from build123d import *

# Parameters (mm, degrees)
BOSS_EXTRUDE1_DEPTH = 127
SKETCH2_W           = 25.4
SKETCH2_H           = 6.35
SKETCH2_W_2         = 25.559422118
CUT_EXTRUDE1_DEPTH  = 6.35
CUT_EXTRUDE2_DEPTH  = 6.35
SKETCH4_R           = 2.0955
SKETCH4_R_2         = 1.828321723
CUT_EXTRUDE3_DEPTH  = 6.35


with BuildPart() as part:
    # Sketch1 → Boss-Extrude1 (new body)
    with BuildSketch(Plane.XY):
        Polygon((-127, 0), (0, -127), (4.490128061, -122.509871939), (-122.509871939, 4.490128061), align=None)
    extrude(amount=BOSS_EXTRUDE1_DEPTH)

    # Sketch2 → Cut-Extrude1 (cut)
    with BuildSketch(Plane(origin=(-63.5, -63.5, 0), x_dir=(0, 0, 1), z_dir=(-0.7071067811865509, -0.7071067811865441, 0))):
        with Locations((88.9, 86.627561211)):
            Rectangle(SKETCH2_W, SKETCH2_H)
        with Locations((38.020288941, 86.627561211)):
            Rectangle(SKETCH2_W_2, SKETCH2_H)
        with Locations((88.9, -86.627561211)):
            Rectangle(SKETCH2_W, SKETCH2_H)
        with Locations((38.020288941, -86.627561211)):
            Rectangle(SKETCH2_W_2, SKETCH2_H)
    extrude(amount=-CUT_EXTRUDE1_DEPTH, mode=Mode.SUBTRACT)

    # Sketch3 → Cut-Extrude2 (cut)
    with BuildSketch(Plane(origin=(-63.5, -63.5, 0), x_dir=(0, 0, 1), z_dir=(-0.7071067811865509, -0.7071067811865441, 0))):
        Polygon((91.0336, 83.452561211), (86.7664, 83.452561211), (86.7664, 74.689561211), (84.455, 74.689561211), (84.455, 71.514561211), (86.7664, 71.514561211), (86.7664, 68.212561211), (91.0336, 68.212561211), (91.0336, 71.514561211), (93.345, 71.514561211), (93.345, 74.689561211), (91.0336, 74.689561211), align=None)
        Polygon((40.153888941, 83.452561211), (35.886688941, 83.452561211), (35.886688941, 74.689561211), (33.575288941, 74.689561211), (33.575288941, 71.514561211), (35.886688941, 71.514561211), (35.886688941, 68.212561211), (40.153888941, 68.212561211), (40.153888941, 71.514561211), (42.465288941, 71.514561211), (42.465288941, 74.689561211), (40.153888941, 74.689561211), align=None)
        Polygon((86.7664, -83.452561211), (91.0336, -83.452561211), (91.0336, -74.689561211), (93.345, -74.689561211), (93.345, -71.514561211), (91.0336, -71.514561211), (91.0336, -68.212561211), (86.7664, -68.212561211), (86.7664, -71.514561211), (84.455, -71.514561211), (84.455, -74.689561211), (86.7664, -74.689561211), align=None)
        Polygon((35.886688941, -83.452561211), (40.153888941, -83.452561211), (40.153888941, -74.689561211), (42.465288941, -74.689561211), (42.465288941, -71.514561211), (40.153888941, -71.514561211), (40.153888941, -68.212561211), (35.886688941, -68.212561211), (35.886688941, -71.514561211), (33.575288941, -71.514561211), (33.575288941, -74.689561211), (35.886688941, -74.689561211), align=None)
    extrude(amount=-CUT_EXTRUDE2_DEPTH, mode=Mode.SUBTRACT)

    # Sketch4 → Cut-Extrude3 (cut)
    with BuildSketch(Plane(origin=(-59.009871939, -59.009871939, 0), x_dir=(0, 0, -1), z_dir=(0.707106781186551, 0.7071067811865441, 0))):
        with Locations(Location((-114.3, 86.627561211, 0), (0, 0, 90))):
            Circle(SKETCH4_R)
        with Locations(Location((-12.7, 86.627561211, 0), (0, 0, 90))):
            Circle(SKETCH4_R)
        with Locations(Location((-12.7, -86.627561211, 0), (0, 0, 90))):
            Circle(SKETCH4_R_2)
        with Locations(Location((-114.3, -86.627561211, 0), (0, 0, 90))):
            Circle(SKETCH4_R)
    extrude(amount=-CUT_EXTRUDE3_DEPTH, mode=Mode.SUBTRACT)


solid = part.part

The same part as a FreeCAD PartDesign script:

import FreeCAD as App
import Part
import Sketcher
Q = App.Units.Quantity

doc = App.newDocument("Part")
body = doc.addObject("PartDesign::Body", "Body")

sketch1 = doc.addObject("Sketcher::SketchObject", "Sketch")
body.addObject(sketch1)
sketch1.AttachmentSupport = (doc.XY_Plane, [""])
sketch1.MapMode = "FlatFace"
sketch1.addGeometry(Part.LineSegment(App.Vector(-127, 0, 0), App.Vector(0, -127, 0)), False)
sketch1.addGeometry(Part.LineSegment(App.Vector(0, -127, 0), App.Vector(4, -123, 0)), False)
sketch1.addGeometry(Part.LineSegment(App.Vector(4, -123, 0), App.Vector(-123, 4, 0)), False)
sketch1.addGeometry(Part.LineSegment(App.Vector(-123, 4, 0), App.Vector(-127, 0, 0)), False)
sketch1.addConstraint(Sketcher.Constraint("Coincident", 0, 2, 1, 1))
sketch1.addConstraint(Sketcher.Constraint("Coincident", 1, 2, 2, 1))
sketch1.addConstraint(Sketcher.Constraint("Coincident", 2, 2, 3, 1))
sketch1.addConstraint(Sketcher.Constraint("Coincident", 3, 2, 0, 1))
sketch1.addConstraint(Sketcher.Constraint("PointOnObject", 0, 2, -2))
sketch1.addConstraint(Sketcher.Constraint("PointOnObject", 3, 2, -1))
sketch1.addConstraint(Sketcher.Constraint("Perpendicular", 0, 1))
sketch1.addConstraint(Sketcher.Constraint("Perpendicular", 1, 2))
sketch1.addConstraint(Sketcher.Constraint("Perpendicular", 2, 3))
sketch1.addConstraint(Sketcher.Constraint("DistanceY", 0, 2, -1, 1, Q("5 in")))
sketch1.addConstraint(Sketcher.Constraint("DistanceX", 3, 2, -1, 1, Q("5 in")))
sketch1.addConstraint(Sketcher.Constraint("Distance", 1, Q("0.25 in")))
pad1 = doc.addObject("PartDesign::Pad", "Pad")
body.addObject(pad1)
pad1.Profile = sketch1
pad1.Length = Q("5 in")

sketch2 = doc.addObject("Sketcher::SketchObject", "Sketch001")
body.addObject(sketch2)
sketch2.Placement = App.Placement(App.Vector(-63.5, -63.5, 0), App.Rotation(App.Vector(0, 0, 1), App.Vector(-0.707106781, 0.707106781, 0), App.Vector(-0.707106781, -0.707106781, 0), "ZXY"))
sketch2.addGeometry(Part.LineSegment(App.Vector(76, 90, 0), App.Vector(76, 83, 0)), False)
sketch2.addGeometry(Part.LineSegment(App.Vector(76, 83, 0), App.Vector(102, 83, 0)), False)
sketch2.addGeometry(Part.LineSegment(App.Vector(102, 83, 0), App.Vector(102, 90, 0)), False)
sketch2.addGeometry(Part.LineSegment(App.Vector(102, 90, 0), App.Vector(76, 90, 0)), False)
sketch2.addGeometry(Part.LineSegment(App.Vector(25, 90, 0), App.Vector(25, 83, 0)), False)
sketch2.addGeometry(Part.LineSegment(App.Vector(25, 83, 0), App.Vector(51, 83, 0)), False)
sketch2.addGeometry(Part.LineSegment(App.Vector(51, 83, 0), App.Vector(51, 90, 0)), False)
sketch2.addGeometry(Part.LineSegment(App.Vector(51, 90, 0), App.Vector(25, 90, 0)), False)
sketch2.addGeometry(Part.LineSegment(App.Vector(76, -83, 0), App.Vector(76, -90, 0)), False)
sketch2.addGeometry(Part.LineSegment(App.Vector(76, -90, 0), App.Vector(102, -90, 0)), False)
sketch2.addGeometry(Part.LineSegment(App.Vector(102, -90, 0), App.Vector(102, -83, 0)), False)
sketch2.addGeometry(Part.LineSegment(App.Vector(102, -83, 0), App.Vector(76, -83, 0)), False)
sketch2.addGeometry(Part.LineSegment(App.Vector(25, -83, 0), App.Vector(25, -90, 0)), False)
sketch2.addGeometry(Part.LineSegment(App.Vector(25, -90, 0), App.Vector(51, -90, 0)), False)
sketch2.addGeometry(Part.LineSegment(App.Vector(51, -90, 0), App.Vector(51, -83, 0)), False)
sketch2.addGeometry(Part.LineSegment(App.Vector(51, -83, 0), App.Vector(25, -83, 0)), False)
sketch2.addConstraint(Sketcher.Constraint("Coincident", 0, 2, 1, 1))
sketch2.addConstraint(Sketcher.Constraint("Coincident", 1, 2, 2, 1))
sketch2.addConstraint(Sketcher.Constraint("Coincident", 2, 2, 3, 1))
sketch2.addConstraint(Sketcher.Constraint("Coincident", 3, 2, 0, 1))
sketch2.addConstraint(Sketcher.Constraint("Coincident", 4, 2, 5, 1))
sketch2.addConstraint(Sketcher.Constraint("Coincident", 5, 2, 6, 1))
sketch2.addConstraint(Sketcher.Constraint("Coincident", 6, 2, 7, 1))
sketch2.addConstraint(Sketcher.Constraint("Coincident", 7, 2, 4, 1))
sketch2.addConstraint(Sketcher.Constraint("Coincident", 8, 2, 9, 1))
sketch2.addConstraint(Sketcher.Constraint("Coincident", 9, 2, 10, 1))
sketch2.addConstraint(Sketcher.Constraint("Coincident", 10, 2, 11, 1))
sketch2.addConstraint(Sketcher.Constraint("Coincident", 11, 2, 8, 1))
sketch2.addConstraint(Sketcher.Constraint("Coincident", 12, 2, 13, 1))
sketch2.addConstraint(Sketcher.Constraint("Coincident", 13, 2, 14, 1))
sketch2.addConstraint(Sketcher.Constraint("Coincident", 14, 2, 15, 1))
sketch2.addConstraint(Sketcher.Constraint("Coincident", 15, 2, 12, 1))
sketch2.addConstraint(Sketcher.Constraint("Vertical", 0))
sketch2.addConstraint(Sketcher.Constraint("Horizontal", 1))
sketch2.addConstraint(Sketcher.Constraint("Vertical", 2))
sketch2.addConstraint(Sketcher.Constraint("Horizontal", 3))
sketch2.addConstraint(Sketcher.Constraint("Vertical", 4))
sketch2.addConstraint(Sketcher.Constraint("Horizontal", 5))
sketch2.addConstraint(Sketcher.Constraint("Vertical", 6))
sketch2.addConstraint(Sketcher.Constraint("Horizontal", 7))
sketch2.addConstraint(Sketcher.Constraint("Vertical", 8))
sketch2.addConstraint(Sketcher.Constraint("Horizontal", 9))
sketch2.addConstraint(Sketcher.Constraint("Vertical", 10))
sketch2.addConstraint(Sketcher.Constraint("Horizontal", 11))
sketch2.addConstraint(Sketcher.Constraint("Vertical", 12))
sketch2.addConstraint(Sketcher.Constraint("Horizontal", 13))
sketch2.addConstraint(Sketcher.Constraint("Vertical", 14))
sketch2.addConstraint(Sketcher.Constraint("Horizontal", 15))
sketch2.addConstraint(Sketcher.Constraint("Symmetric", 3, 2, 8, 2, -1))
sketch2.addConstraint(Sketcher.Constraint("Symmetric", 1, 2, 10, 2, -1))
sketch2.addConstraint(Sketcher.Constraint("Symmetric", 7, 2, 12, 2, -1))
sketch2.addConstraint(Sketcher.Constraint("Symmetric", 5, 2, 14, 2, -1))
sketch2.addConstraint(Sketcher.Constraint("Horizontal", 1, 2, 4, 2))
sketch2.addConstraint(Sketcher.Constraint("Horizontal", 3, 2, 6, 2))
sketch2.addConstraint(Sketcher.Constraint("DistanceX", 1, 1, 1, 2, Q("1 in")))
sketch2.addConstraint(Sketcher.Constraint("DistanceX", -1, 1, 0, 2, Q("3 in")))
sketch2.addConstraint(Sketcher.Constraint("DistanceX", -1, 1, 5, 2, Q("2 in")))
sketch2.addConstraint(Sketcher.Constraint("DistanceY", 0, 2, 0, 1, Q("0.25 in")))
sketch2.addConstraint(Sketcher.Constraint("DistanceX", 5, 1, 5, 2, Q("25.559422 mm")))
sketch2.addConstraint(Sketcher.Constraint("DistanceY", -1, 1, 0, 2, Q("83.452561 mm")))
pocket1 = doc.addObject("PartDesign::Pocket", "Pocket")
body.addObject(pocket1)
pocket1.Profile = sketch2
pocket1.Length = Q("0.25 in")

sketch3 = doc.addObject("Sketcher::SketchObject", "Sketch002")
body.addObject(sketch3)
sketch3.Placement = App.Placement(App.Vector(-63.5, -63.5, 0), App.Rotation(App.Vector(0, 0, 1), App.Vector(-0.707106781, 0.707106781, 0), App.Vector(-0.707106781, -0.707106781, 0), "ZXY"))
sketch3.addGeometry(Part.LineSegment(App.Vector(91, 83.5, 0), App.Vector(86.8, 83.5, 0)), False)
sketch3.addGeometry(Part.LineSegment(App.Vector(86.8, 83.5, 0), App.Vector(86.8, 74.7, 0)), False)
sketch3.addGeometry(Part.LineSegment(App.Vector(86.8, 74.7, 0), App.Vector(84.5, 74.7, 0)), False)
sketch3.addGeometry(Part.LineSegment(App.Vector(84.5, 74.7, 0), App.Vector(84.5, 71.5, 0)), False)
sketch3.addGeometry(Part.LineSegment(App.Vector(84.5, 71.5, 0), App.Vector(86.8, 71.5, 0)), False)
sketch3.addGeometry(Part.LineSegment(App.Vector(86.8, 71.5, 0), App.Vector(86.8, 68.2, 0)), False)
sketch3.addGeometry(Part.LineSegment(App.Vector(86.8, 68.2, 0), App.Vector(91, 68.2, 0)), False)
sketch3.addGeometry(Part.LineSegment(App.Vector(91, 68.2, 0), App.Vector(91, 71.5, 0)), False)
sketch3.addGeometry(Part.LineSegment(App.Vector(91, 71.5, 0), App.Vector(93.3, 71.5, 0)), False)
sketch3.addGeometry(Part.LineSegment(App.Vector(93.3, 71.5, 0), App.Vector(93.3, 74.7, 0)), False)
sketch3.addGeometry(Part.LineSegment(App.Vector(93.3, 74.7, 0), App.Vector(91, 74.7, 0)), False)
sketch3.addGeometry(Part.LineSegment(App.Vector(91, 74.7, 0), App.Vector(91, 83.5, 0)), False)
sketch3.addGeometry(Part.LineSegment(App.Vector(40.2, 83.5, 0), App.Vector(35.9, 83.5, 0)), False)
sketch3.addGeometry(Part.LineSegment(App.Vector(35.9, 83.5, 0), App.Vector(35.9, 74.7, 0)), False)
sketch3.addGeometry(Part.LineSegment(App.Vector(35.9, 74.7, 0), App.Vector(33.6, 74.7, 0)), False)
sketch3.addGeometry(Part.LineSegment(App.Vector(33.6, 74.7, 0), App.Vector(33.6, 71.5, 0)), False)
sketch3.addGeometry(Part.LineSegment(App.Vector(33.6, 71.5, 0), App.Vector(35.9, 71.5, 0)), False)
sketch3.addGeometry(Part.LineSegment(App.Vector(35.9, 71.5, 0), App.Vector(35.9, 68.2, 0)), False)
sketch3.addGeometry(Part.LineSegment(App.Vector(35.9, 68.2, 0), App.Vector(40.2, 68.2, 0)), False)
sketch3.addGeometry(Part.LineSegment(App.Vector(40.2, 68.2, 0), App.Vector(40.2, 71.5, 0)), False)
sketch3.addGeometry(Part.LineSegment(App.Vector(40.2, 71.5, 0), App.Vector(42.5, 71.5, 0)), False)
sketch3.addGeometry(Part.LineSegment(App.Vector(42.5, 71.5, 0), App.Vector(42.5, 74.7, 0)), False)
sketch3.addGeometry(Part.LineSegment(App.Vector(42.5, 74.7, 0), App.Vector(40.2, 74.7, 0)), False)
sketch3.addGeometry(Part.LineSegment(App.Vector(40.2, 74.7, 0), App.Vector(40.2, 83.5, 0)), False)
sketch3.addGeometry(Part.LineSegment(App.Vector(86.8, -83.5, 0), App.Vector(91, -83.5, 0)), False)
sketch3.addGeometry(Part.LineSegment(App.Vector(91, -83.5, 0), App.Vector(91, -74.7, 0)), False)
sketch3.addGeometry(Part.LineSegment(App.Vector(91, -74.7, 0), App.Vector(93.3, -74.7, 0)), False)
sketch3.addGeometry(Part.LineSegment(App.Vector(93.3, -74.7, 0), App.Vector(93.3, -71.5, 0)), False)
sketch3.addGeometry(Part.LineSegment(App.Vector(93.3, -71.5, 0), App.Vector(91, -71.5, 0)), False)
sketch3.addGeometry(Part.LineSegment(App.Vector(91, -71.5, 0), App.Vector(91, -68.2, 0)), False)
sketch3.addGeometry(Part.LineSegment(App.Vector(91, -68.2, 0), App.Vector(86.8, -68.2, 0)), False)
sketch3.addGeometry(Part.LineSegment(App.Vector(86.8, -68.2, 0), App.Vector(86.8, -71.5, 0)), False)
sketch3.addGeometry(Part.LineSegment(App.Vector(86.8, -71.5, 0), App.Vector(84.5, -71.5, 0)), False)
sketch3.addGeometry(Part.LineSegment(App.Vector(84.5, -71.5, 0), App.Vector(84.5, -74.7, 0)), False)
sketch3.addGeometry(Part.LineSegment(App.Vector(84.5, -74.7, 0), App.Vector(86.8, -74.7, 0)), False)
sketch3.addGeometry(Part.LineSegment(App.Vector(86.8, -74.7, 0), App.Vector(86.8, -83.5, 0)), False)
sketch3.addGeometry(Part.LineSegment(App.Vector(35.9, -83.5, 0), App.Vector(40.2, -83.5, 0)), False)
sketch3.addGeometry(Part.LineSegment(App.Vector(40.2, -83.5, 0), App.Vector(40.2, -74.7, 0)), False)
sketch3.addGeometry(Part.LineSegment(App.Vector(40.2, -74.7, 0), App.Vector(42.5, -74.7, 0)), False)
sketch3.addGeometry(Part.LineSegment(App.Vector(42.5, -74.7, 0), App.Vector(42.5, -71.5, 0)), False)
sketch3.addGeometry(Part.LineSegment(App.Vector(42.5, -71.5, 0), App.Vector(40.2, -71.5, 0)), False)
sketch3.addGeometry(Part.LineSegment(App.Vector(40.2, -71.5, 0), App.Vector(40.2, -68.2, 0)), False)
sketch3.addGeometry(Part.LineSegment(App.Vector(40.2, -68.2, 0), App.Vector(35.9, -68.2, 0)), False)
sketch3.addGeometry(Part.LineSegment(App.Vector(35.9, -68.2, 0), App.Vector(35.9, -71.5, 0)), False)
sketch3.addGeometry(Part.LineSegment(App.Vector(35.9, -71.5, 0), App.Vector(33.6, -71.5, 0)), False)
sketch3.addGeometry(Part.LineSegment(App.Vector(33.6, -71.5, 0), App.Vector(33.6, -74.7, 0)), False)
sketch3.addGeometry(Part.LineSegment(App.Vector(33.6, -74.7, 0), App.Vector(35.9, -74.7, 0)), False)
sketch3.addGeometry(Part.LineSegment(App.Vector(35.9, -74.7, 0), App.Vector(35.9, -83.5, 0)), False)
sketch3.addConstraint(Sketcher.Constraint("Coincident", 0, 2, 1, 1))
sketch3.addConstraint(Sketcher.Constraint("Coincident", 1, 2, 2, 1))
sketch3.addConstraint(Sketcher.Constraint("Coincident", 2, 2, 3, 1))
sketch3.addConstraint(Sketcher.Constraint("Coincident", 3, 2, 4, 1))
sketch3.addConstraint(Sketcher.Constraint("Coincident", 4, 2, 5, 1))
sketch3.addConstraint(Sketcher.Constraint("Coincident", 5, 2, 6, 1))
sketch3.addConstraint(Sketcher.Constraint("Coincident", 6, 2, 7, 1))
sketch3.addConstraint(Sketcher.Constraint("Coincident", 7, 2, 8, 1))
sketch3.addConstraint(Sketcher.Constraint("Coincident", 8, 2, 9, 1))
sketch3.addConstraint(Sketcher.Constraint("Coincident", 9, 2, 10, 1))
sketch3.addConstraint(Sketcher.Constraint("Coincident", 10, 2, 11, 1))
sketch3.addConstraint(Sketcher.Constraint("Coincident", 11, 2, 0, 1))
sketch3.addConstraint(Sketcher.Constraint("Coincident", 12, 2, 13, 1))
sketch3.addConstraint(Sketcher.Constraint("Coincident", 13, 2, 14, 1))
sketch3.addConstraint(Sketcher.Constraint("Coincident", 14, 2, 15, 1))
sketch3.addConstraint(Sketcher.Constraint("Coincident", 15, 2, 16, 1))
sketch3.addConstraint(Sketcher.Constraint("Coincident", 16, 2, 17, 1))
sketch3.addConstraint(Sketcher.Constraint("Coincident", 17, 2, 18, 1))
sketch3.addConstraint(Sketcher.Constraint("Coincident", 18, 2, 19, 1))
sketch3.addConstraint(Sketcher.Constraint("Coincident", 19, 2, 20, 1))
sketch3.addConstraint(Sketcher.Constraint("Coincident", 20, 2, 21, 1))
sketch3.addConstraint(Sketcher.Constraint("Coincident", 21, 2, 22, 1))
sketch3.addConstraint(Sketcher.Constraint("Coincident", 22, 2, 23, 1))
sketch3.addConstraint(Sketcher.Constraint("Coincident", 23, 2, 12, 1))
sketch3.addConstraint(Sketcher.Constraint("Coincident", 24, 2, 25, 1))
sketch3.addConstraint(Sketcher.Constraint("Coincident", 25, 2, 26, 1))
sketch3.addConstraint(Sketcher.Constraint("Coincident", 26, 2, 27, 1))
sketch3.addConstraint(Sketcher.Constraint("Coincident", 27, 2, 28, 1))
sketch3.addConstraint(Sketcher.Constraint("Coincident", 28, 2, 29, 1))
sketch3.addConstraint(Sketcher.Constraint("Coincident", 29, 2, 30, 1))
sketch3.addConstraint(Sketcher.Constraint("Coincident", 30, 2, 31, 1))
sketch3.addConstraint(Sketcher.Constraint("Coincident", 31, 2, 32, 1))
sketch3.addConstraint(Sketcher.Constraint("Coincident", 32, 2, 33, 1))
sketch3.addConstraint(Sketcher.Constraint("Coincident", 33, 2, 34, 1))
sketch3.addConstraint(Sketcher.Constraint("Coincident", 34, 2, 35, 1))
sketch3.addConstraint(Sketcher.Constraint("Coincident", 35, 2, 24, 1))
sketch3.addConstraint(Sketcher.Constraint("Coincident", 36, 2, 37, 1))
sketch3.addConstraint(Sketcher.Constraint("Coincident", 37, 2, 38, 1))
sketch3.addConstraint(Sketcher.Constraint("Coincident", 38, 2, 39, 1))
sketch3.addConstraint(Sketcher.Constraint("Coincident", 39, 2, 40, 1))
sketch3.addConstraint(Sketcher.Constraint("Coincident", 40, 2, 41, 1))
sketch3.addConstraint(Sketcher.Constraint("Coincident", 41, 2, 42, 1))
sketch3.addConstraint(Sketcher.Constraint("Coincident", 42, 2, 43, 1))
sketch3.addConstraint(Sketcher.Constraint("Coincident", 43, 2, 44, 1))
sketch3.addConstraint(Sketcher.Constraint("Coincident", 44, 2, 45, 1))
sketch3.addConstraint(Sketcher.Constraint("Coincident", 45, 2, 46, 1))
sketch3.addConstraint(Sketcher.Constraint("Coincident", 46, 2, 47, 1))
sketch3.addConstraint(Sketcher.Constraint("Coincident", 47, 2, 36, 1))
sketch3.addConstraint(Sketcher.Constraint("Horizontal", 0))
sketch3.addConstraint(Sketcher.Constraint("Vertical", 1))
sketch3.addConstraint(Sketcher.Constraint("Horizontal", 2))
sketch3.addConstraint(Sketcher.Constraint("Vertical", 3))
sketch3.addConstraint(Sketcher.Constraint("Horizontal", 4))
sketch3.addConstraint(Sketcher.Constraint("Vertical", 5))
sketch3.addConstraint(Sketcher.Constraint("Horizontal", 6))
sketch3.addConstraint(Sketcher.Constraint("Vertical", 7))
sketch3.addConstraint(Sketcher.Constraint("Horizontal", 8))
sketch3.addConstraint(Sketcher.Constraint("Vertical", 9))
sketch3.addConstraint(Sketcher.Constraint("Horizontal", 10))
sketch3.addConstraint(Sketcher.Constraint("Vertical", 11))
sketch3.addConstraint(Sketcher.Constraint("Horizontal", 12))
sketch3.addConstraint(Sketcher.Constraint("Vertical", 13))
sketch3.addConstraint(Sketcher.Constraint("Horizontal", 14))
sketch3.addConstraint(Sketcher.Constraint("Vertical", 15))
sketch3.addConstraint(Sketcher.Constraint("Horizontal", 16))
sketch3.addConstraint(Sketcher.Constraint("Vertical", 17))
sketch3.addConstraint(Sketcher.Constraint("Horizontal", 18))
sketch3.addConstraint(Sketcher.Constraint("Vertical", 19))
sketch3.addConstraint(Sketcher.Constraint("Horizontal", 20))
sketch3.addConstraint(Sketcher.Constraint("Vertical", 21))
sketch3.addConstraint(Sketcher.Constraint("Horizontal", 22))
sketch3.addConstraint(Sketcher.Constraint("Vertical", 23))
sketch3.addConstraint(Sketcher.Constraint("Horizontal", 24))
sketch3.addConstraint(Sketcher.Constraint("Vertical", 25))
sketch3.addConstraint(Sketcher.Constraint("Horizontal", 26))
sketch3.addConstraint(Sketcher.Constraint("Vertical", 27))
sketch3.addConstraint(Sketcher.Constraint("Horizontal", 28))
sketch3.addConstraint(Sketcher.Constraint("Vertical", 29))
sketch3.addConstraint(Sketcher.Constraint("Horizontal", 30))
sketch3.addConstraint(Sketcher.Constraint("Vertical", 31))
sketch3.addConstraint(Sketcher.Constraint("Horizontal", 32))
sketch3.addConstraint(Sketcher.Constraint("Vertical", 33))
sketch3.addConstraint(Sketcher.Constraint("Horizontal", 34))
sketch3.addConstraint(Sketcher.Constraint("Vertical", 35))
sketch3.addConstraint(Sketcher.Constraint("Horizontal", 36))
sketch3.addConstraint(Sketcher.Constraint("Vertical", 37))
sketch3.addConstraint(Sketcher.Constraint("Horizontal", 38))
sketch3.addConstraint(Sketcher.Constraint("Vertical", 39))
sketch3.addConstraint(Sketcher.Constraint("Horizontal", 40))
sketch3.addConstraint(Sketcher.Constraint("Vertical", 41))
sketch3.addConstraint(Sketcher.Constraint("Horizontal", 42))
sketch3.addConstraint(Sketcher.Constraint("Vertical", 43))
sketch3.addConstraint(Sketcher.Constraint("Horizontal", 44))
sketch3.addConstraint(Sketcher.Constraint("Vertical", 45))
sketch3.addConstraint(Sketcher.Constraint("Horizontal", 46))
sketch3.addConstraint(Sketcher.Constraint("Vertical", 47))
sketch3.addConstraint(Sketcher.Constraint("Symmetric", 11, 2, 24, 2, -1))
sketch3.addConstraint(Sketcher.Constraint("Symmetric", 9, 2, 26, 2, -1))
sketch3.addConstraint(Sketcher.Constraint("Symmetric", 7, 2, 28, 2, -1))
sketch3.addConstraint(Sketcher.Constraint("Symmetric", 5, 2, 30, 2, -1))
sketch3.addConstraint(Sketcher.Constraint("Symmetric", 3, 2, 32, 2, -1))
sketch3.addConstraint(Sketcher.Constraint("Symmetric", 1, 2, 34, 2, -1))
sketch3.addConstraint(Sketcher.Constraint("Symmetric", 23, 2, 36, 2, -1))
sketch3.addConstraint(Sketcher.Constraint("Symmetric", 21, 2, 38, 2, -1))
sketch3.addConstraint(Sketcher.Constraint("Symmetric", 19, 2, 40, 2, -1))
sketch3.addConstraint(Sketcher.Constraint("Symmetric", 17, 2, 42, 2, -1))
sketch3.addConstraint(Sketcher.Constraint("Symmetric", 15, 2, 44, 2, -1))
sketch3.addConstraint(Sketcher.Constraint("Symmetric", 13, 2, 46, 2, -1))
sketch3.addConstraint(Sketcher.Constraint("Horizontal", 4, 2, 7, 2))
sketch3.addConstraint(Sketcher.Constraint("Horizontal", 2, 2, 9, 2))
sketch3.addConstraint(Sketcher.Constraint("Horizontal", 11, 2, 12, 2))
sketch3.addConstraint(Sketcher.Constraint("Horizontal", 10, 2, 13, 2))
sketch3.addConstraint(Sketcher.Constraint("Horizontal", 8, 2, 15, 2))
sketch3.addConstraint(Sketcher.Constraint("Horizontal", 6, 2, 17, 2))
sketch3.addConstraint(Sketcher.Constraint("Horizontal", 16, 2, 19, 2))
sketch3.addConstraint(Sketcher.Constraint("Horizontal", 14, 2, 21, 2))
sketch3.addConstraint(Sketcher.Constraint("Vertical", 1, 2, 4, 2))
sketch3.addConstraint(Sketcher.Constraint("Vertical", 7, 2, 10, 2))
sketch3.addConstraint(Sketcher.Constraint("Vertical", 13, 2, 16, 2))
sketch3.addConstraint(Sketcher.Constraint("Vertical", 19, 2, 22, 2))
sketch3.addConstraint(Sketcher.Constraint("Equal", 4, 8))
sketch3.addConstraint(Sketcher.Constraint("Equal", 6, 12))
sketch3.addConstraint(Sketcher.Constraint("Equal", 10, 14))
sketch3.addConstraint(Sketcher.Constraint("Equal", 16, 20))
sketch3.addConstraint(Sketcher.Constraint("DistanceY", 5, 2, 5, 1, Q("0.13 in")))
sketch3.addConstraint(Sketcher.Constraint("DistanceY", 5, 2, 0, 2, Q("0.6 in")))
sketch3.addConstraint(Sketcher.Constraint("DistanceX", 0, 2, 0, 1, Q("0.168 in")))
sketch3.addConstraint(Sketcher.Constraint("DistanceX", 2, 2, 2, 1, Q("0.091 in")))
sketch3.addConstraint(Sketcher.Constraint("DistanceY", 1, 2, 1, 1, Q("0.345 in")))
sketch3.addConstraint(Sketcher.Constraint("DistanceX", -1, 1, 0, 2, Q("3.416 in")))
sketch3.addConstraint(Sketcher.Constraint("DistanceY", -1, 1, 0, 2, Q("83.452561 mm")))
sketch3.addConstraint(Sketcher.Constraint("DistanceX", -1, 1, 12, 2, Q("35.886689 mm")))
pocket2 = doc.addObject("PartDesign::Pocket", "Pocket001")
body.addObject(pocket2)
pocket2.Profile = sketch3
pocket2.Length = Q("0.25 in")

sketch4 = doc.addObject("Sketcher::SketchObject", "Sketch003")
body.addObject(sketch4)
sketch4.Placement = App.Placement(App.Vector(-59.009872, -59.009872, 0), App.Rotation(App.Vector(0, 0, -1), App.Vector(-0.707106781, 0.707106781, 0), App.Vector(0.707106781, 0.707106781, 0), "ZXY"))
sketch4.addGeometry(Part.Circle(App.Vector(-114.3, 86.6, 0), App.Vector(0, 0, 1), 2.1), False)
sketch4.addGeometry(Part.Circle(App.Vector(-12.7, 86.6, 0), App.Vector(0, 0, 1), 2.1), False)
sketch4.addGeometry(Part.Circle(App.Vector(-12.7, -86.6, 0), App.Vector(0, 0, 1), 1.8), False)
sketch4.addGeometry(Part.Circle(App.Vector(-114.3, -86.6, 0), App.Vector(0, 0, 1), 2.1), False)
sketch4.addConstraint(Sketcher.Constraint("Equal", 0, 1))
sketch4.addConstraint(Sketcher.Constraint("Equal", 1, 3))
sketch4.addConstraint(Sketcher.Constraint("Symmetric", 1, 3, 2, 3, -1))
sketch4.addConstraint(Sketcher.Constraint("Symmetric", 0, 3, 3, 3, -1))
sketch4.addConstraint(Sketcher.Constraint("Horizontal", 0, 3, 1, 3))
sketch4.addConstraint(Sketcher.Constraint("Diameter", 0, Q("0.165 in")))
sketch4.addConstraint(Sketcher.Constraint("DistanceX", 0, 3, 1, 3, Q("4 in")))
sketch4.addConstraint(Sketcher.Constraint("DistanceX", 0, 3, -1, 1, Q("4.5 in")))
sketch4.addConstraint(Sketcher.Constraint("Diameter", 2, Q("3.656643 mm")))
sketch4.addConstraint(Sketcher.Constraint("DistanceY", -1, 1, 0, 3, Q("86.627561 mm")))
pocket3 = doc.addObject("PartDesign::Pocket", "Pocket002")
body.addObject(pocket3)
pocket3.Profile = sketch4
pocket3.Length = Q("0.25 in")

doc.recompute()
